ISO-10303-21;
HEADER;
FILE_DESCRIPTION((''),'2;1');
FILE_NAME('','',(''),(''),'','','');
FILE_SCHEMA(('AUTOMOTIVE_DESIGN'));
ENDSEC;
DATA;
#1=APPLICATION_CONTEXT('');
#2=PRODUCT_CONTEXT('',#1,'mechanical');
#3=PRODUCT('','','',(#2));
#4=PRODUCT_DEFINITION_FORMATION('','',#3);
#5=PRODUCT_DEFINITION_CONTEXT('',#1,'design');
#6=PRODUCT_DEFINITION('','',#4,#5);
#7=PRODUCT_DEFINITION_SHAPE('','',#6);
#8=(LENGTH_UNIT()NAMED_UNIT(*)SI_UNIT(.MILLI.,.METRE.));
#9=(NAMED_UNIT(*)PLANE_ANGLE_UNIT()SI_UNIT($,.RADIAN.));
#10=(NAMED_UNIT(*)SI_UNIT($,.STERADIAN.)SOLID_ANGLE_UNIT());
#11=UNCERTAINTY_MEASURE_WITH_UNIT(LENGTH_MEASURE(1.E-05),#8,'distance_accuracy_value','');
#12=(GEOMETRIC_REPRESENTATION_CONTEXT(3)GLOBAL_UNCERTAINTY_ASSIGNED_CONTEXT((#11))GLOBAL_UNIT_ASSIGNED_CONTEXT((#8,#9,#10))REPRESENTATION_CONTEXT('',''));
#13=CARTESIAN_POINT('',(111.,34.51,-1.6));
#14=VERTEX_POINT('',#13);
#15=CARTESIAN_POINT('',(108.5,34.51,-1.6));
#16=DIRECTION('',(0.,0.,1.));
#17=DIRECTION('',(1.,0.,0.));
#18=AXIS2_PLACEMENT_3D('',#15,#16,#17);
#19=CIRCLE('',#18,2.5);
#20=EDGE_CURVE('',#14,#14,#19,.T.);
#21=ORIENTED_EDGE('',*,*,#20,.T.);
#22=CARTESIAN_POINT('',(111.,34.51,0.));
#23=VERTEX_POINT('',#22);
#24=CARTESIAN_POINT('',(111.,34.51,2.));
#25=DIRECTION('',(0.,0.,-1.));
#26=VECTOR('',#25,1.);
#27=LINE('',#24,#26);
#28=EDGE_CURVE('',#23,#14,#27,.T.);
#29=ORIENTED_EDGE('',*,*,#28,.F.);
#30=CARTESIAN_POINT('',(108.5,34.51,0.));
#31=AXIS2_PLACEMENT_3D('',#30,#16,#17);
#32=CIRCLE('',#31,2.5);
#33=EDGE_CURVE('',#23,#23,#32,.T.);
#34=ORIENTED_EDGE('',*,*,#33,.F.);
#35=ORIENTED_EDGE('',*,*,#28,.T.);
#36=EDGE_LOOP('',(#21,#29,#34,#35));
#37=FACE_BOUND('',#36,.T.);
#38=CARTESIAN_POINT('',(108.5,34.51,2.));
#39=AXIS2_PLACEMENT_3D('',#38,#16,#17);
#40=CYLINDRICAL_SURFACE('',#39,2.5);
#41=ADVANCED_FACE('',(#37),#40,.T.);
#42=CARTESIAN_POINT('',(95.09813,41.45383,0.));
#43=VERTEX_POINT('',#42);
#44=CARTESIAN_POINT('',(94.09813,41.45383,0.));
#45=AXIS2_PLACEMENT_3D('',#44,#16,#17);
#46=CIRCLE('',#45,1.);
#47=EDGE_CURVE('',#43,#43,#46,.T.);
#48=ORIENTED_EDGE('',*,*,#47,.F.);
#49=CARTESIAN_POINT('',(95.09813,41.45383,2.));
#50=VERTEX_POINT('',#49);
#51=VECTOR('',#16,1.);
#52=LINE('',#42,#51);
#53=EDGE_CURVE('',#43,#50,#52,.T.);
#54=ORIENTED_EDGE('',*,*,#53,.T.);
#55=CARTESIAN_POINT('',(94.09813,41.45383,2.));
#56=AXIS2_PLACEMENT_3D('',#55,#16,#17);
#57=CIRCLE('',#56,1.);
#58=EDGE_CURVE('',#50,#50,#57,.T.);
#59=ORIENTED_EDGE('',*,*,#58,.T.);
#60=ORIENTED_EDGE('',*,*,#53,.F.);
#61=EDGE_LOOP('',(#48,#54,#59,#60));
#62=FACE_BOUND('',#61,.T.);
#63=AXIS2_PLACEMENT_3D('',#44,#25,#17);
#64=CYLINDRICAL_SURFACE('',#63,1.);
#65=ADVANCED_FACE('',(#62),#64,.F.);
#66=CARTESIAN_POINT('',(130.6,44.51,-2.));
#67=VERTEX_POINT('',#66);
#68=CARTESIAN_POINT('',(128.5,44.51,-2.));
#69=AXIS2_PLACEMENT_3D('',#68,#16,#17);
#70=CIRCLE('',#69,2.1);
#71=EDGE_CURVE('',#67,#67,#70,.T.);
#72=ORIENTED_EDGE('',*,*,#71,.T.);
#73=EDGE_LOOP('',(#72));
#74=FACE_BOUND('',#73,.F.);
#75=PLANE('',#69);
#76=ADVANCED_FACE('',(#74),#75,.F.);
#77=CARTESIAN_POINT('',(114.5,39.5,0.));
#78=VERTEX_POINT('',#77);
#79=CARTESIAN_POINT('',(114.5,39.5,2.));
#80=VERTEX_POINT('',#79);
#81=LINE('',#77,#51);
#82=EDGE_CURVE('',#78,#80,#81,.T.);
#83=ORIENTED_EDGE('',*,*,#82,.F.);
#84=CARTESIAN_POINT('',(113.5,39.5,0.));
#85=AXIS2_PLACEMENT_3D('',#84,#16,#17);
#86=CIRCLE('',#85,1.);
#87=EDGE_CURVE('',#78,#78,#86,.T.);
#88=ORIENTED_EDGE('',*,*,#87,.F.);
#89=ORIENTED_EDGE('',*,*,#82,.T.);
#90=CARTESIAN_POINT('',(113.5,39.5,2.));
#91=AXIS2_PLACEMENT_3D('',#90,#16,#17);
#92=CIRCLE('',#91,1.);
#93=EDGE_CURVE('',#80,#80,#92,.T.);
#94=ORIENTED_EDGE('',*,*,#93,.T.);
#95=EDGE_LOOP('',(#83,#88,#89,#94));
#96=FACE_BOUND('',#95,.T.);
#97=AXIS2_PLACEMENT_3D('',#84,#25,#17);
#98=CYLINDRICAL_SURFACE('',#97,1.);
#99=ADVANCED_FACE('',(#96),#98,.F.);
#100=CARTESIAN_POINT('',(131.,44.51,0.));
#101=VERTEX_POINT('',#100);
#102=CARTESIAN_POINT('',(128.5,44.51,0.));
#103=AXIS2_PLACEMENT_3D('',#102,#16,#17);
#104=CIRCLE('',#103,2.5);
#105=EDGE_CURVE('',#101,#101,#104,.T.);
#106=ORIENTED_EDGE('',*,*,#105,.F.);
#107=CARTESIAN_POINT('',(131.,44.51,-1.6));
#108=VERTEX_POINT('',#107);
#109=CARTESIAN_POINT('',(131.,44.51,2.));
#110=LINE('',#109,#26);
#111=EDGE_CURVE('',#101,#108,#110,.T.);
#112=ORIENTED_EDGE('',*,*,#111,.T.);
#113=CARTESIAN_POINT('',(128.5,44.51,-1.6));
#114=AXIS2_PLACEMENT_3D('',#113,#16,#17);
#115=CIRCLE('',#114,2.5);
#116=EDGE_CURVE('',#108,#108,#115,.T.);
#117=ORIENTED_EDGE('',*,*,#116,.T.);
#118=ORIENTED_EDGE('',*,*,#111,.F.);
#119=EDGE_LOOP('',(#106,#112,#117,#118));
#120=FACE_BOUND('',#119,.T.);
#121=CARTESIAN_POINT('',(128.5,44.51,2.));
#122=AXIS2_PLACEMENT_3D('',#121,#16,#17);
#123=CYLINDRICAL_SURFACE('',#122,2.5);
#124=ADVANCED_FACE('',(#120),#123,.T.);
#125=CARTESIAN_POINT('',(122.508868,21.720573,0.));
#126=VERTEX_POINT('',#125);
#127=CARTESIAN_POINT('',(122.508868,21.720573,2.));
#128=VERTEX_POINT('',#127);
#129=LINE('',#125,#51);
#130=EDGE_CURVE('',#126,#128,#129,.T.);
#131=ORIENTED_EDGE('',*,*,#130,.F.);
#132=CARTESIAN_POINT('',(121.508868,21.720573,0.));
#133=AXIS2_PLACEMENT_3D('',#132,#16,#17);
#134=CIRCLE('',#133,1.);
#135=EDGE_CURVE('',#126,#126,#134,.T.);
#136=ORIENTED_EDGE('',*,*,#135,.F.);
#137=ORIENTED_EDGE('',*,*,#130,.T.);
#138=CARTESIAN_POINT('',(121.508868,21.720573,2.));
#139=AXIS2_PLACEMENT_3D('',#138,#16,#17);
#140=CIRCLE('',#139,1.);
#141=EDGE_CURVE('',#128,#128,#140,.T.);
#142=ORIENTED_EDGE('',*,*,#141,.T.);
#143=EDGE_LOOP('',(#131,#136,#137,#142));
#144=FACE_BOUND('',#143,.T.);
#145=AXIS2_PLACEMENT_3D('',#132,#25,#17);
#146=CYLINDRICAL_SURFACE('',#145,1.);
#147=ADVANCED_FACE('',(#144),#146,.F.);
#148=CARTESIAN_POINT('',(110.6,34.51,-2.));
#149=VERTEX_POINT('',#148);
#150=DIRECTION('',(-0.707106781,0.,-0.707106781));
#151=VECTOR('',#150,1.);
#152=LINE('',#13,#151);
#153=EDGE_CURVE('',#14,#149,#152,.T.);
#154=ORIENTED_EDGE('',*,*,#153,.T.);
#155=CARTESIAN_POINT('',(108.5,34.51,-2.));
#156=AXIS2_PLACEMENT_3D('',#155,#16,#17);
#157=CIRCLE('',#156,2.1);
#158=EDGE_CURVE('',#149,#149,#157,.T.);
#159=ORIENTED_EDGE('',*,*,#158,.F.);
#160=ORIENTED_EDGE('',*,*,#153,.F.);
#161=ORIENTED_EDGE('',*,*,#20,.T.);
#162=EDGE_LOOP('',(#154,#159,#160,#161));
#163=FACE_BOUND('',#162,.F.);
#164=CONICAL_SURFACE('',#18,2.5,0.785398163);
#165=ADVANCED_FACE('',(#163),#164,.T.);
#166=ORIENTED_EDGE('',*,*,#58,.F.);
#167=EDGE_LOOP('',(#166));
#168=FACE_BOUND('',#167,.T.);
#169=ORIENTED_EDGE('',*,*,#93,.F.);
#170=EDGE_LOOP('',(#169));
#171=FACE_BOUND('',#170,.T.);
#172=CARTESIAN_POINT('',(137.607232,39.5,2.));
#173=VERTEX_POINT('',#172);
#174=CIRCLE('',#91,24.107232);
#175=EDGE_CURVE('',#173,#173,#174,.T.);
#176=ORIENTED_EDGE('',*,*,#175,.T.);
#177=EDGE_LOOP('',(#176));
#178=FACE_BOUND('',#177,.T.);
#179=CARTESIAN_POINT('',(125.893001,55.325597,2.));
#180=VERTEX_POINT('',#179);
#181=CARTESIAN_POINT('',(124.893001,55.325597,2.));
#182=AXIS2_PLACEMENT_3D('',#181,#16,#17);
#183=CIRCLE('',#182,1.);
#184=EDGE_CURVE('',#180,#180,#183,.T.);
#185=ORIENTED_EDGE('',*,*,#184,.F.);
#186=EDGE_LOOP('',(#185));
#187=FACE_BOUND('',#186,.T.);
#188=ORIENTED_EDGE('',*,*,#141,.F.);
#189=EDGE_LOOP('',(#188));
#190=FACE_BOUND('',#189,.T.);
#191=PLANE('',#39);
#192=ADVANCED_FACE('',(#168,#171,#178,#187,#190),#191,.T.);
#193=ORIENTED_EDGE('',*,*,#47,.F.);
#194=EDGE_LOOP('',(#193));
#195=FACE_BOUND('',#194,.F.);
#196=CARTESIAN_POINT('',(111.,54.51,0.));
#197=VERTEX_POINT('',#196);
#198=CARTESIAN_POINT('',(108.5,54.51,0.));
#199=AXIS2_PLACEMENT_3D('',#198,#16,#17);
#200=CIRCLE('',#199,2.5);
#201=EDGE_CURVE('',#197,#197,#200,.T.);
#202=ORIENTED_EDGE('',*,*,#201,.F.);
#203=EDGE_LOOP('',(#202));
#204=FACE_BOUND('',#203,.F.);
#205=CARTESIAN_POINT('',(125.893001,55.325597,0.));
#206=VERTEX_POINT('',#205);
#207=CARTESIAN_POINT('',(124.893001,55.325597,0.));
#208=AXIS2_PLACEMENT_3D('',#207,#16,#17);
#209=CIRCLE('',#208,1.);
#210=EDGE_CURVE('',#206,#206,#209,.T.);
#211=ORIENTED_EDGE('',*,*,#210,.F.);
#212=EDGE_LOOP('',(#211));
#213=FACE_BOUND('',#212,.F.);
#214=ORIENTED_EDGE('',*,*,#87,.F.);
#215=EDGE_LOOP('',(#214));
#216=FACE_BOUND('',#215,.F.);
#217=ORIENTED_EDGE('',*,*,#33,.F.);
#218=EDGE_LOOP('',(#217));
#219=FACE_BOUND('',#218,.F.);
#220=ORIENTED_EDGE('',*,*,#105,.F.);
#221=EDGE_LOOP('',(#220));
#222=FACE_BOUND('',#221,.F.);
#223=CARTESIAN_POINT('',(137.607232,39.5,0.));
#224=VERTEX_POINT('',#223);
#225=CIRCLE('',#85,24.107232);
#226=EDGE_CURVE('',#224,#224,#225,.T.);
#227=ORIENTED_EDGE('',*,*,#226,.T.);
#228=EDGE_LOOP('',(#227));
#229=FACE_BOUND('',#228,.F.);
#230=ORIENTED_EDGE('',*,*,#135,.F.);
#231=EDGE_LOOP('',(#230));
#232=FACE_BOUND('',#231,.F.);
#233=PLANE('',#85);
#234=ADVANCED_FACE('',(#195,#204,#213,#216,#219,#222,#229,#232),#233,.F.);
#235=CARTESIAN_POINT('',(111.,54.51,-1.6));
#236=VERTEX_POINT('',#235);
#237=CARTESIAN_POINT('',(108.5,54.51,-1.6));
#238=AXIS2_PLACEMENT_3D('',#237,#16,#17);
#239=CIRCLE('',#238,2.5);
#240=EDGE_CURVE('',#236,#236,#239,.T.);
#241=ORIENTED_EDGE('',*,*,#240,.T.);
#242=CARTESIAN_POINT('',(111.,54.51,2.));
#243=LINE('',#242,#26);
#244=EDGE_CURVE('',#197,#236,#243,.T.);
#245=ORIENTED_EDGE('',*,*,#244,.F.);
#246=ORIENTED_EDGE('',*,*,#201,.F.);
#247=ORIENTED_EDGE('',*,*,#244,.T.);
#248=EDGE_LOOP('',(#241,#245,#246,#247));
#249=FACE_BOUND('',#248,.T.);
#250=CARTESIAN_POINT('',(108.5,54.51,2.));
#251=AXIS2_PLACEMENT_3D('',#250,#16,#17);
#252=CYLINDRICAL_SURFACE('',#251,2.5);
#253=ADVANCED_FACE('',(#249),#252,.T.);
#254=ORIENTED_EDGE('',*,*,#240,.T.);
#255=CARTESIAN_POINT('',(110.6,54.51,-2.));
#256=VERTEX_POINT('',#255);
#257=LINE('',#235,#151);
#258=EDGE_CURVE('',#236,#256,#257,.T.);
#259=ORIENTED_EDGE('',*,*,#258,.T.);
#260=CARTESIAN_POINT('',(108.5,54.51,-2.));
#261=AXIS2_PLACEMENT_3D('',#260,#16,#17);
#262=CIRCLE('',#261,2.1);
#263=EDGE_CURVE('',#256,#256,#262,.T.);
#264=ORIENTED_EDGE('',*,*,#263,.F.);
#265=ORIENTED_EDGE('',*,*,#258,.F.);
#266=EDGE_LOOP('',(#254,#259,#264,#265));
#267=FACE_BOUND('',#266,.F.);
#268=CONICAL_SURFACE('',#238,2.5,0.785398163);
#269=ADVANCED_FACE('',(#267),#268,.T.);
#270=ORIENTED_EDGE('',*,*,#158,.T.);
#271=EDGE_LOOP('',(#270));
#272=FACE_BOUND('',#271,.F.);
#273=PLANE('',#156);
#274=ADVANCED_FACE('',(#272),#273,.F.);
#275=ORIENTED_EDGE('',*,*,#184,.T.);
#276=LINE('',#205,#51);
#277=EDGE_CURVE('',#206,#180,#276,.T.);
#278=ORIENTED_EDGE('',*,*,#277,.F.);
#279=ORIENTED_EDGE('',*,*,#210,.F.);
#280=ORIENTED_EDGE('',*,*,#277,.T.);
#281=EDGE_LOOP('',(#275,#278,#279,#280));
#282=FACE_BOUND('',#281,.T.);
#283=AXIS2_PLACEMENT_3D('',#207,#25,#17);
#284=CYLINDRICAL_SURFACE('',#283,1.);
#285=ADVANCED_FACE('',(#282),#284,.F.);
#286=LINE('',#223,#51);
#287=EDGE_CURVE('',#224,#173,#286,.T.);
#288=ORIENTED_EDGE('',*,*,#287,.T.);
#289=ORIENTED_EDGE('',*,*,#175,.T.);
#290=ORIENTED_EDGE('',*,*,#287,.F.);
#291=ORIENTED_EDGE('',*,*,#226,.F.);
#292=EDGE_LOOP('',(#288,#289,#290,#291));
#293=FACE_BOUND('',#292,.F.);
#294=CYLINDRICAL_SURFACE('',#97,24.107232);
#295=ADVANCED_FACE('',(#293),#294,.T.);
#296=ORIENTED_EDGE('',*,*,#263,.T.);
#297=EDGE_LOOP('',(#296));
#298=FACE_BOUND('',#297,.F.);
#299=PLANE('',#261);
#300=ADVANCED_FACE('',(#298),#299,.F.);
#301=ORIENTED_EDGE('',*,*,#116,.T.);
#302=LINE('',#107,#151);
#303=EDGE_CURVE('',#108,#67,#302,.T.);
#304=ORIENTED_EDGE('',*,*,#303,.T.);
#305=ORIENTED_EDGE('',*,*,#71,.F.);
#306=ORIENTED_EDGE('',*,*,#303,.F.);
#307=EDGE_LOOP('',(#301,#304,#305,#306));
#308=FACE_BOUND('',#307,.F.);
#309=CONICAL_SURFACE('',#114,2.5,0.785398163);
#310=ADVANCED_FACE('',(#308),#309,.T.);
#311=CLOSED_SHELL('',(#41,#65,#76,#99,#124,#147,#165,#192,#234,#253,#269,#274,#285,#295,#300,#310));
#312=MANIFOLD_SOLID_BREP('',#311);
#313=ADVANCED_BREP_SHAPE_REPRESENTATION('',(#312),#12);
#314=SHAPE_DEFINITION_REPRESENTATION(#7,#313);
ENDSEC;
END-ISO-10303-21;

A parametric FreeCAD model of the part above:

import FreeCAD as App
import Part
import Sketcher

V = App.Vector
Q = App.Units.Quantity


def edges_at(feature, points):
    """Names of the edges that pass closest to the given points."""
    edges = feature.Shape.Edges
    near = lambda p: min(range(len(edges)), key=lambda i: edges[i].distToShape(Part.Vertex(*p))[0])
    return sorted({f"Edge{near(p) + 1}" for p in points})

doc = App.newDocument("Part")
body = doc.addObject("PartDesign::Body", "Body")

sketch1 = body.newObject("Sketcher::SketchObject", "Sketch")
sketch1.AttachmentSupport = (doc.getObject("XY_Plane"), [""])
sketch1.MapMode = "FlatFace"
sketch1.addGeometry(Part.Circle(V(113.5, 39.5, 0), V(0, 0, 1), 24.1), False)
sketch1.addGeometry(Part.Circle(V(121.5, 21.7, 0), V(0, 0, 1), 1), False)
sketch1.addGeometry(Part.Circle(V(94.1, 41.5, 0), V(0, 0, 1), 1), False)
sketch1.addGeometry(Part.Circle(V(113.5, 39.5, 0), V(0, 0, 1), 1), False)
sketch1.addGeometry(Part.Circle(V(124.9, 55.3, 0), V(0, 0, 1), 1), False)
sketch1.addConstraint(Sketcher.Constraint("Coincident", 3, 3, 0, 3))
sketch1.addConstraint(Sketcher.Constraint("Equal", 1, 2))
sketch1.addConstraint(Sketcher.Constraint("Equal", 2, 3))
sketch1.addConstraint(Sketcher.Constraint("Equal", 3, 4))
sketch1.addConstraint(Sketcher.Constraint("Diameter", 1, Q("2 mm")))
sketch1.addConstraint(Sketcher.Constraint("DistanceX", -1, 1, 0, 3, Q("113.5 mm")))
sketch1.addConstraint(Sketcher.Constraint("DistanceY", -1, 1, 0, 3, Q("39.5 mm")))
sketch1.addConstraint(Sketcher.Constraint("Diameter", 0, Q("48.214464 mm")))
sketch1.addConstraint(Sketcher.Constraint("DistanceX", -1, 1, 4, 3, Q("124.893001 mm")))
sketch1.addConstraint(Sketcher.Constraint("DistanceX", -1, 1, 1, 3, Q("121.508868 mm")))
sketch1.addConstraint(Sketcher.Constraint("DistanceX", -1, 1, 2, 3, Q("94.09813 mm")))
sketch1.addConstraint(Sketcher.Constraint("DistanceY", -1, 1, 2, 3, Q("41.45383 mm")))
sketch1.addConstraint(Sketcher.Constraint("DistanceY", -1, 1, 1, 3, Q("21.720573 mm")))
sketch1.addConstraint(Sketcher.Constraint("DistanceY", -1, 1, 4, 3, Q("55.325597 mm")))
pad1 = body.newObject("PartDesign::Pad", "Pad")
pad1.Profile = sketch1
pad1.Length = 2

sketch2 = body.newObject("Sketcher::SketchObject", "Sketch001")
sketch2.AttachmentSupport = (doc.getObject("XY_Plane"), [""])
sketch2.MapMode = "FlatFace"
sketch2.AttachmentOffset = App.Placement(V(0, 0, 2), App.Rotation())
sketch2.addGeometry(Part.Circle(V(108.5, 34.5, 0), V(0, 0, 1), 2.5), False)
sketch2.addGeometry(Part.Circle(V(108.5, 54.5, 0), V(0, 0, 1), 2.5), False)
sketch2.addGeometry(Part.Circle(V(128.5, 44.5, 0), V(0, 0, 1), 2.5), False)
sketch2.addConstraint(Sketcher.Constraint("Equal", 0, 1))
sketch2.addConstraint(Sketcher.Constraint("Equal", 1, 2))
sketch2.addConstraint(Sketcher.Constraint("Vertical", 0, 3, 1, 3))
sketch2.addConstraint(Sketcher.Constraint("Diameter", 0, Q("5 mm")))
sketch2.addConstraint(Sketcher.Constraint("DistanceY", 0, 3, 1, 3, Q("20 mm")))
sketch2.addConstraint(Sketcher.Constraint("DistanceX", 0, 3, 2, 3, Q("20 mm")))
sketch2.addConstraint(Sketcher.Constraint("DistanceY", 0, 3, 2, 3, Q("10 mm")))
sketch2.addConstraint(Sketcher.Constraint("DistanceX", -1, 1, 0, 3, Q("108.5 mm")))
sketch2.addConstraint(Sketcher.Constraint("DistanceY", -1, 1, 0, 3, Q("34.51 mm")))
pad2 = body.newObject("PartDesign::Pad", "Pad001")
pad2.Profile = sketch2
pad2.Length = 4
pad2.Reversed = True
doc.recompute()

chamfer = body.newObject("PartDesign::Chamfer", "Chamfer")
chamfer.Base = (pad2, edges_at(pad2, [(106, 34.51, -2), (106, 54.51, -2), (126, 44.51, -2)]))
chamfer.Size = 0.4

doc.recompute()
